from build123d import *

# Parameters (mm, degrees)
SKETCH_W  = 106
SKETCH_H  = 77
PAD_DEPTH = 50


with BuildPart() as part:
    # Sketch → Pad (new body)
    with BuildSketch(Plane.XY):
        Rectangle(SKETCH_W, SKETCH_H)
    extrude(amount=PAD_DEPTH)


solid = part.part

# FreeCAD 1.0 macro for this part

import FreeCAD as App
import Part
import Sketcher
from FreeCAD import Vector
Q = App.Units.Quantity

doc = App.newDocument("Part")
body = doc.addObject("PartDesign::Body", "Body")

sketch1 = doc.addObject("Sketcher::SketchObject", "Sketch")
body.addObject(sketch1)
sketch1.AttachmentSupport = (doc.XY_Plane, [""])
sketch1.MapMode = "FlatFace"
sketch1.addGeometry([
    Part.LineSegment(Vector(-53, 38, 0), Vector(-53, -38, 0)),
    Part.LineSegment(Vector(-53, -38, 0), Vector(53, -38, 0)),
    Part.LineSegment(Vector(53, -38, 0), Vector(53, 38, 0)),
    Part.LineSegment(Vector(53, 38, 0), Vector(-53, 38, 0)),
], False)
sketch1.addConstraint([
    Sketcher.Constraint("Coincident", 0, 2, 1, 1),
    Sketcher.Constraint("Coincident", 1, 2, 2, 1),
    Sketcher.Constraint("Coincident", 2, 2, 3, 1),
    Sketcher.Constraint("Coincident", 3, 2, 0, 1),
    Sketcher.Constraint("Vertical", 0),
    Sketcher.Constraint("Horizontal", 1),
    Sketcher.Constraint("Vertical", 2),
    Sketcher.Constraint("Horizontal", 3),
    Sketcher.Constraint("Symmetric", 0, 2, 2, 2, -1, 1),
    Sketcher.Constraint("DistanceX", 1, 1, 1, 2, Q("106 mm")),
    Sketcher.Constraint("DistanceY", 0, 2, 0, 1, Q("77 mm")),
])
pad1 = doc.addObject("PartDesign::Pad", "Pad")
body.addObject(pad1)
pad1.Profile = sketch1
pad1.Length = 50

doc.recompute()
